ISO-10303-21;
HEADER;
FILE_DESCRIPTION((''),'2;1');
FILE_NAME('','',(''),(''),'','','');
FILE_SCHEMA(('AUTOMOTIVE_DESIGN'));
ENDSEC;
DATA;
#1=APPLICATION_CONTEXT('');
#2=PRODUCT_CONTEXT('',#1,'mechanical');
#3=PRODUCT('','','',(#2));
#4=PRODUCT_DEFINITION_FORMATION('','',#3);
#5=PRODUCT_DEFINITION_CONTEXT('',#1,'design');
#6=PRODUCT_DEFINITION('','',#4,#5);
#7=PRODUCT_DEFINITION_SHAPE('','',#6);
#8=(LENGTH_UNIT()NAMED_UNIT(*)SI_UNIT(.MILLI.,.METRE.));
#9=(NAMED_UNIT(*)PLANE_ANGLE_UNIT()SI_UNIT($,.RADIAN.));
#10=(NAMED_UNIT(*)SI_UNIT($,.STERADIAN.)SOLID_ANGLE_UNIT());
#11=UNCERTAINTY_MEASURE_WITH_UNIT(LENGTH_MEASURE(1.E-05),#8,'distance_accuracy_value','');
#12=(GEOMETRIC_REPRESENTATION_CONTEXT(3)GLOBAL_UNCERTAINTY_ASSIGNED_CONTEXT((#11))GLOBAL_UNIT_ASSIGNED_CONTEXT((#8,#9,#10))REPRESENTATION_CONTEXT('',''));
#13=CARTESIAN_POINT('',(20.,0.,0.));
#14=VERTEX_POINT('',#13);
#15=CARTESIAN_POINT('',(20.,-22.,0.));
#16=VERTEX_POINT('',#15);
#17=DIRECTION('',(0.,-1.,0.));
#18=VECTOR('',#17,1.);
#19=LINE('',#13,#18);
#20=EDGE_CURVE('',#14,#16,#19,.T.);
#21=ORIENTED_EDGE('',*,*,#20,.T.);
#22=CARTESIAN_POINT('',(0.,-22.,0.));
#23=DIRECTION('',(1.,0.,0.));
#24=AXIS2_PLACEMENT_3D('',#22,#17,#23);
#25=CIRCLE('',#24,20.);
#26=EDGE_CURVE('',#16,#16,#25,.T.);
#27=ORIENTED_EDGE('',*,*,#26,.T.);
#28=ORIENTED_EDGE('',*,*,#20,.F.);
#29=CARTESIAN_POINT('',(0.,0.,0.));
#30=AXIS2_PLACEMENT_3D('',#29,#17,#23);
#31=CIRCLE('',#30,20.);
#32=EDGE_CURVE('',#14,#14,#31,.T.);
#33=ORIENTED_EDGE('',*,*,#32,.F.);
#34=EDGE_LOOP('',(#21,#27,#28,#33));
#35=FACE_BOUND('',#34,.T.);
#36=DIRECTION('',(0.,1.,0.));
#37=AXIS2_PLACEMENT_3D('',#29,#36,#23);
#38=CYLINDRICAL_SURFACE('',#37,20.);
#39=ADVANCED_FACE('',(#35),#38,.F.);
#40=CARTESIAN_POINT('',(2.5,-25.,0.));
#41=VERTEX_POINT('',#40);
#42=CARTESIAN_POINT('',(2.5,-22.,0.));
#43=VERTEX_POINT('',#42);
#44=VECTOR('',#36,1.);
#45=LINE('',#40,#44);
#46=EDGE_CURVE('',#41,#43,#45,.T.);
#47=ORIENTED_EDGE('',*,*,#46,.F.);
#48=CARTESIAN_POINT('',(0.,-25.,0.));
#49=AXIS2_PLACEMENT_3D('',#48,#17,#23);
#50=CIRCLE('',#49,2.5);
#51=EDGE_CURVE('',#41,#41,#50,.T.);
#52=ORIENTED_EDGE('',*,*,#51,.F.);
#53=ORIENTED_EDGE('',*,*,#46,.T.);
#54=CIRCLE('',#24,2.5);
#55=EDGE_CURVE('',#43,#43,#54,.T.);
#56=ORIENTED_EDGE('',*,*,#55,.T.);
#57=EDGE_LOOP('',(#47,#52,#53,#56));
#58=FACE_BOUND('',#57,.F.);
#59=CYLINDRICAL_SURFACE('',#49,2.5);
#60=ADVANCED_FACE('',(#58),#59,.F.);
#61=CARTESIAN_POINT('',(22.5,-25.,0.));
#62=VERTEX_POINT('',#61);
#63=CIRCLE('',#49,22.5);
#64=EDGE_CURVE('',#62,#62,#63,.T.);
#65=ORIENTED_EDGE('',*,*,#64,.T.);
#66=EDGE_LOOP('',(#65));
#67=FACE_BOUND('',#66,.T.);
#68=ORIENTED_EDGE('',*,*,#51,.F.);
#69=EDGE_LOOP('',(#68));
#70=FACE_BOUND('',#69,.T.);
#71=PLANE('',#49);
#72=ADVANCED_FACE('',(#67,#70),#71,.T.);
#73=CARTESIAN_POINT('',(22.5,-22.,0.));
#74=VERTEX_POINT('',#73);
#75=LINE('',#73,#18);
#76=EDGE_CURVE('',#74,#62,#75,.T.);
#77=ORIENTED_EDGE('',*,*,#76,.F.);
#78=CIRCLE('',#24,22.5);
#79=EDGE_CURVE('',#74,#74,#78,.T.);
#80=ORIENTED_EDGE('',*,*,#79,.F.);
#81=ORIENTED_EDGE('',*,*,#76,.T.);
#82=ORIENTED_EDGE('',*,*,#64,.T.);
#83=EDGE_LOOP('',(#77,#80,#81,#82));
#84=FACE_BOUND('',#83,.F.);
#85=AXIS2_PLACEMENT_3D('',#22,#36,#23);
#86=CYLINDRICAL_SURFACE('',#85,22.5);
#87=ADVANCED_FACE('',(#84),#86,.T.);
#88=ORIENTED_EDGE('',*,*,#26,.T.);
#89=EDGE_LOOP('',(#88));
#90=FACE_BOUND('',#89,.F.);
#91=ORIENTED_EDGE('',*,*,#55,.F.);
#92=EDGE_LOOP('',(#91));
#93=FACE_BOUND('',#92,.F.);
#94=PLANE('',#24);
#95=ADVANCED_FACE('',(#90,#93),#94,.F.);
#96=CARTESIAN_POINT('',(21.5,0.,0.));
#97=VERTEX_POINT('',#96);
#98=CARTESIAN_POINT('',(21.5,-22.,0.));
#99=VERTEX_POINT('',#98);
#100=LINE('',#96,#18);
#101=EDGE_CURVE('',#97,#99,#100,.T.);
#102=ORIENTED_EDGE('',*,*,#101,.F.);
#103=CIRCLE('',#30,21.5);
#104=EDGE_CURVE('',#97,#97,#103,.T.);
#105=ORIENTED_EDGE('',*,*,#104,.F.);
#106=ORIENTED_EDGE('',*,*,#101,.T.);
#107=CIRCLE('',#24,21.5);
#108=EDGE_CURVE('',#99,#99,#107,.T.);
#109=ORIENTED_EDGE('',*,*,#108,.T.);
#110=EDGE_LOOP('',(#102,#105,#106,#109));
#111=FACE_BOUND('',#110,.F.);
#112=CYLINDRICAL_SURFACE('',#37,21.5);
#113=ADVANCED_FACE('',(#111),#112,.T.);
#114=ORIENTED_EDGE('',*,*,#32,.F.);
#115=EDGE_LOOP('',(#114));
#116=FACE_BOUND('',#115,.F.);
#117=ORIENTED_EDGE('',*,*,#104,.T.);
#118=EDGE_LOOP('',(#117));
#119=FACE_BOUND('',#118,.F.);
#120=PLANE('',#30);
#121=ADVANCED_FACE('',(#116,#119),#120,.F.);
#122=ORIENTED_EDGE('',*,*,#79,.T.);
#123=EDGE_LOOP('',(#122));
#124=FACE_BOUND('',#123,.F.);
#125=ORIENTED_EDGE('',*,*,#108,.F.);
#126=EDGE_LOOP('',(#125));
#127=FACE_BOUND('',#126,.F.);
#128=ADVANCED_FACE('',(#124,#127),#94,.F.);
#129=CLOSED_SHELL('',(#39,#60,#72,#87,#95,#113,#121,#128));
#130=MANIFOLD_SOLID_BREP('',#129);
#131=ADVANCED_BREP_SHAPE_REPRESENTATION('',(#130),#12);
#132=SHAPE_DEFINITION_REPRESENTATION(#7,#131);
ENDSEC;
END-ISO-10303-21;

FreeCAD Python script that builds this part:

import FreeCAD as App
import Part
import Sketcher

doc = App.newDocument("Part")
body = doc.addObject("PartDesign::Body", "Body")

# Sketch on XZ plane
sketch1 = body.newObject("Sketcher::SketchObject", "Sketch")
sketch1.AttachmentSupport = (doc.getObject("XZ_Plane"), [""])
sketch1.MapMode = "FlatFace"
sketch1.addGeometry([
    Part.Circle(App.Vector(0, 0, 0), App.Vector(0, 0, 1), 21.5),
    Part.Circle(App.Vector(0, 0, 0), App.Vector(0, 0, 1), 20),
], False)
sketch1.addConstraint([
    Sketcher.Constraint("Coincident", 0, 3, -1, 1),
    Sketcher.Constraint("Coincident", 1, 3, -1, 1),
    Sketcher.Constraint("Diameter", 0, 43.0),
    Sketcher.Constraint("Diameter", 1, 40.0),
])
pad1 = body.newObject("PartDesign::Pad", "Pad")
pad1.Profile = sketch1
pad1.Length = 22

# Sketch on XZ plane
sketch2 = body.newObject("Sketcher::SketchObject", "Sketch001")
sketch2.AttachmentSupport = (doc.getObject("XZ_Plane"), [""])
sketch2.MapMode = "FlatFace"
sketch2.AttachmentOffset = App.Placement(App.Vector(0, 0, 22), App.Rotation())
sketch2.addGeometry(Part.Circle(App.Vector(0, 0, 0), App.Vector(0, 0, 1), 22.5), False)
sketch2.addConstraint([
    Sketcher.Constraint("Coincident", 0, 3, -1, 1),
    Sketcher.Constraint("Diameter", 0, 45.0),
])
pad2 = body.newObject("PartDesign::Pad", "Pad001")
pad2.Profile = sketch2
pad2.Length = 3

# Sketch on XZ plane
sketch3 = body.newObject("Sketcher::SketchObject", "Sketch002")
sketch3.AttachmentSupport = (doc.getObject("XZ_Plane"), [""])
sketch3.MapMode = "FlatFace"
sketch3.AttachmentOffset = App.Placement(App.Vector(0, 0, 25), App.Rotation())
sketch3.addGeometry(Part.Circle(App.Vector(0, 0, 0), App.Vector(0, 0, 1), 2.5), False)
sketch3.addConstraint([
    Sketcher.Constraint("Coincident", 0, 3, -1, 1),
    Sketcher.Constraint("Diameter", 0, 5.0),
])
pocket1 = body.newObject("PartDesign::Pocket", "Pocket")
pocket1.Profile = sketch3
pocket1.Length = 3

doc.recompute()
